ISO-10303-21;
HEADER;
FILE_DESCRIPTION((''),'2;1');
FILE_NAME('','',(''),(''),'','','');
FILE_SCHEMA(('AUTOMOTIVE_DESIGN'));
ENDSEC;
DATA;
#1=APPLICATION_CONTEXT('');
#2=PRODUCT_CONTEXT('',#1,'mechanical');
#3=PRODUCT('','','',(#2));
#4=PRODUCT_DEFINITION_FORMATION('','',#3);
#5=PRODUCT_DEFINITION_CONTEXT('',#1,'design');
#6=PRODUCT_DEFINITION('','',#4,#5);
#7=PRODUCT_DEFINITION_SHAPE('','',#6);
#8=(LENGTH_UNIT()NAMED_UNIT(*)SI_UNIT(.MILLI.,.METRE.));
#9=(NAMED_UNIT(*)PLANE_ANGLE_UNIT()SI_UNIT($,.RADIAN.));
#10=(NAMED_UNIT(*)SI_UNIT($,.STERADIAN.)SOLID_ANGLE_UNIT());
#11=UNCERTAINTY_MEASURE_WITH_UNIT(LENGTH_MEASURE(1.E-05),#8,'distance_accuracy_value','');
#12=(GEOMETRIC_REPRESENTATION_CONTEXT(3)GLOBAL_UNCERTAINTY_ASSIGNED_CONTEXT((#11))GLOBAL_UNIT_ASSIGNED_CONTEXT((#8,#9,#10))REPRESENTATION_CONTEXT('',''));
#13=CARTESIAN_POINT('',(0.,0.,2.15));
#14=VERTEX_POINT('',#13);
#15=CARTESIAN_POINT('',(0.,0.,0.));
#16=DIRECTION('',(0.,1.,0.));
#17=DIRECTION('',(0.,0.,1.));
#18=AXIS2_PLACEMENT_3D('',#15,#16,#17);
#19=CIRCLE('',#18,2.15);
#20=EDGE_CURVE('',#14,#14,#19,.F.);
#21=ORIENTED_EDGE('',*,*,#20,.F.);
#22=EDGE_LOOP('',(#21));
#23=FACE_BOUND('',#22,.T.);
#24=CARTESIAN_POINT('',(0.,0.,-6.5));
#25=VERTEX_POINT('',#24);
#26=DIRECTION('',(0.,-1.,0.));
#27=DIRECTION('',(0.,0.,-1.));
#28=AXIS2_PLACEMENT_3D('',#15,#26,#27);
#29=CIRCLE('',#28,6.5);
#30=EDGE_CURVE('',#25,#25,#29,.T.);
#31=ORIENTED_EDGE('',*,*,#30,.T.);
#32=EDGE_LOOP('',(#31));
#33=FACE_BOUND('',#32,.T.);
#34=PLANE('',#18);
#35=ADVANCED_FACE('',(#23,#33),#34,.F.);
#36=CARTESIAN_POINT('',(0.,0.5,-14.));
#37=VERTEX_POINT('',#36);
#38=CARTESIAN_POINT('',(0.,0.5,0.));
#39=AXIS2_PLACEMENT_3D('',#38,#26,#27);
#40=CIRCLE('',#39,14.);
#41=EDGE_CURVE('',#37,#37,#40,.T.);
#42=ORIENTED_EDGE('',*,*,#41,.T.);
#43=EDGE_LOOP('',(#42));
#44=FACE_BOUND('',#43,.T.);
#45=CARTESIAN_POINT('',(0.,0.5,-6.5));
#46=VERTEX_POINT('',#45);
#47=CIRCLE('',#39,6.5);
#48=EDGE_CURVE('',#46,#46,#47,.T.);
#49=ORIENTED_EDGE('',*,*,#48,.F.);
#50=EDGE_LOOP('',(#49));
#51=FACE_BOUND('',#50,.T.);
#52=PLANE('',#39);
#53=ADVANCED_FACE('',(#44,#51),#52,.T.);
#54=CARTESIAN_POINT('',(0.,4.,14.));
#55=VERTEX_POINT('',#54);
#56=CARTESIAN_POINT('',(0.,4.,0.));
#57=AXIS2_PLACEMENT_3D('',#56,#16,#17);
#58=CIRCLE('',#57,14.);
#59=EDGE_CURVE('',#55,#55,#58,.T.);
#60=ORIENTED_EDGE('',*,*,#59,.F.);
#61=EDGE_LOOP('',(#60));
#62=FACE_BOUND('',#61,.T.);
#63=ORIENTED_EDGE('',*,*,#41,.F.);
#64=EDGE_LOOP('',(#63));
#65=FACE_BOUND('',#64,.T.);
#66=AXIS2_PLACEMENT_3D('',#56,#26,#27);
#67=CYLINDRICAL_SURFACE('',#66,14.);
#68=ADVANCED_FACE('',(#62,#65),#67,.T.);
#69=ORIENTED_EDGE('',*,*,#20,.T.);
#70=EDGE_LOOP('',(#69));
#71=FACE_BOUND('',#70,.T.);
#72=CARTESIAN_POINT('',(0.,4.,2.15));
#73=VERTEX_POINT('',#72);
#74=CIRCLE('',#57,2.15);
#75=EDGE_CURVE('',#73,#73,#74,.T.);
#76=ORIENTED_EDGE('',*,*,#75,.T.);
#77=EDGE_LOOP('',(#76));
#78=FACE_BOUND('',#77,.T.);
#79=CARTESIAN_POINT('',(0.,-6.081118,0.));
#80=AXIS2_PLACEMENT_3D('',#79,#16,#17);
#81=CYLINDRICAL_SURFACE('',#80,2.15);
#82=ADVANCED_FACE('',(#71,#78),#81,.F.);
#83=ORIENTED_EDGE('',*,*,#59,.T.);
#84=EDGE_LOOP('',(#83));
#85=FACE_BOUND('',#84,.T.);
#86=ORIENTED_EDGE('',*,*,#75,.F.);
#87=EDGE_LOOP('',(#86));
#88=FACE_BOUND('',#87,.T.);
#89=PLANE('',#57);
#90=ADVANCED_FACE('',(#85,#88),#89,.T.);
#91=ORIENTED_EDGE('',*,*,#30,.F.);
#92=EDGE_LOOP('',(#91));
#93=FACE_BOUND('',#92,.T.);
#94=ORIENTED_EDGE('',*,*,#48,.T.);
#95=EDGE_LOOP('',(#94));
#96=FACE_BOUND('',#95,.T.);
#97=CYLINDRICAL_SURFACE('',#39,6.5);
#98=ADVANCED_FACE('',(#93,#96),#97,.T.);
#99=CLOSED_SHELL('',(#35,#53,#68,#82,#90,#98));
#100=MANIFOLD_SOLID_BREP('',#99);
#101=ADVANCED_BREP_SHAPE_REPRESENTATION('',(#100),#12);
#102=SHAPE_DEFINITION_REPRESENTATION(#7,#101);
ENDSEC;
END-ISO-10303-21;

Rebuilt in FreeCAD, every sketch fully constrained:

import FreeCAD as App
import Part
import Sketcher
from FreeCAD import Vector

doc = App.newDocument("Part")
body = doc.addObject("PartDesign::Body", "Body")

# Sketch on XZ plane
sketch1 = body.newObject("Sketcher::SketchObject", "Sketch")
sketch1.AttachmentSupport = (doc.getObject("XZ_Plane"), [""])
sketch1.MapMode = "FlatFace"
sketch1.addGeometry(Part.Circle(Vector(0, 0, 0), Vector(0, 0, 1), 14), False)
sketch1.addConstraint(Sketcher.Constraint("Coincident", 0, 3, -1, 1))
sketch1.addConstraint(Sketcher.Constraint("Diameter", 0, 28.0))
pad1 = body.newObject("PartDesign::Pad", "Pad")
pad1.Profile = sketch1
pad1.Length = 4
pad1.Reversed = True

# Sketch on XZ plane
sketch2 = body.newObject("Sketcher::SketchObject", "Sketch001")
sketch2.AttachmentSupport = (doc.getObject("XZ_Plane"), [""])
sketch2.MapMode = "FlatFace"
sketch2.addGeometry(Part.Circle(Vector(0, 0, 0), Vector(0, 0, 1), 14), False)
sketch2.addGeometry(Part.Circle(Vector(0, 0, 0), Vector(0, 0, 1), 6.5), False)
sketch2.addConstraint(Sketcher.Constraint("Coincident", 0, 3, -1, 1))
sketch2.addConstraint(Sketcher.Constraint("Coincident", 1, 3, -1, 1))
sketch2.addConstraint(Sketcher.Constraint("Diameter", 0, 28.0))
sketch2.addConstraint(Sketcher.Constraint("Diameter", 1, 13.0))
pocket1 = body.newObject("PartDesign::Pocket", "Pocket")
pocket1.Profile = sketch2
pocket1.Length = 0.5

# Sketch on XZ plane
sketch3 = body.newObject("Sketcher::SketchObject", "Sketch002")
sketch3.AttachmentSupport = (doc.getObject("XZ_Plane"), [""])
sketch3.MapMode = "FlatFace"
sketch3.AttachmentOffset = App.Placement(Vector(0, 0, -4), App.Rotation())
sketch3.addGeometry(Part.Circle(Vector(0, 0, 0), Vector(0, 0, 1), 2.15), False)
sketch3.addConstraint(Sketcher.Constraint("Coincident", 0, 3, -1, 1))
sketch3.addConstraint(Sketcher.Constraint("Diameter", 0, 4.3))
pocket2 = body.newObject("PartDesign::Pocket", "Pocket001")
pocket2.Profile = sketch3
pocket2.Length = 4
pocket2.Reversed = True

doc.recompute()
